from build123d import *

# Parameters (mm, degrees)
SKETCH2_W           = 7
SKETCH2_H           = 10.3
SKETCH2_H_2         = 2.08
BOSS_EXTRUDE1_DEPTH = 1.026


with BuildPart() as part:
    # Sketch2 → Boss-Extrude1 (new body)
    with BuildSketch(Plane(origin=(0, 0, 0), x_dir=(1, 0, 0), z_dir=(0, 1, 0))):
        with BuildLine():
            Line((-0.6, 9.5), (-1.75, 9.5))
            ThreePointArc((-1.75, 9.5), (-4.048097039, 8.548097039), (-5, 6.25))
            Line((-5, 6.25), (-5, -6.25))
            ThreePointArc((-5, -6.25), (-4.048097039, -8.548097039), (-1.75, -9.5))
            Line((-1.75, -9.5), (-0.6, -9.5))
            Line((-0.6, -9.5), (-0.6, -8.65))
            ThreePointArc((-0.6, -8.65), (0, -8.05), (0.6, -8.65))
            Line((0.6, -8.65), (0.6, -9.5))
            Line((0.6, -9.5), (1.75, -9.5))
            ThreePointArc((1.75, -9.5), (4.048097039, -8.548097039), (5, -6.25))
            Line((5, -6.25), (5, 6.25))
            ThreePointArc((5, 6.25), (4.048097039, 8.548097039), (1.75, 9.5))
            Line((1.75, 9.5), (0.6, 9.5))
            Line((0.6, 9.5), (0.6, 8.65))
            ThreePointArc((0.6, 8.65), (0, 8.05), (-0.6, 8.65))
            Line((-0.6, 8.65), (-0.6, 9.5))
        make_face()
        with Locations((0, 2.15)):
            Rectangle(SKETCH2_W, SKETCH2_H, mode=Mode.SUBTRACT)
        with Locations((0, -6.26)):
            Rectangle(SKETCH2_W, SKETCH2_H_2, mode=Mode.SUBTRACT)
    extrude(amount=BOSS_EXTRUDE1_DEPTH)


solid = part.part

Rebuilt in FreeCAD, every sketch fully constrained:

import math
import FreeCAD as App
import Part
import Sketcher

V = App.Vector
Q = App.Units.Quantity


def add_polygon(sketch, points):
    """Adds a closed chain of lines whose ends are joined by coincident constraints."""
    first, n = sketch.GeometryCount, len(points)
    for a, b in zip(points, points[1:] + points[:1]):
        sketch.addGeometry(Part.LineSegment(App.Vector(*a, 0), App.Vector(*b, 0)), False)
    for i in range(n):
        sketch.addConstraint(Sketcher.Constraint("Coincident", first + i, 2, first + (i + 1) % n, 1))

doc = App.newDocument("Part")
body = doc.addObject("PartDesign::Body", "Body")

# Sketch on XZ plane
sketch1 = body.newObject("Sketcher::SketchObject", "Sketch")
sketch1.AttachmentSupport = (doc.getObject("XZ_Plane"), [""])
sketch1.MapMode = "FlatFace"
sketch1.addGeometry(Part.LineSegment(V(-0.6, -9.5, 0), V(-1.8, -9.5, 0)), False)  # 0
sketch1.addGeometry(Part.ArcOfCircle(Part.Circle(V(-1.8, -6.2, 0), V(0, 0, 1), 3.2), math.radians(180), math.radians(270)), False)  # 1
sketch1.addGeometry(Part.LineSegment(V(-5, -6.2, 0), V(-5, 6.2, 0)), False)  # 2
sketch1.addGeometry(Part.ArcOfCircle(Part.Circle(V(-1.8, 6.2, 0), V(0, 0, 1), 3.2), math.radians(90), math.radians(180)), False)  # 3
sketch1.addGeometry(Part.LineSegment(V(-1.8, 9.5, 0), V(-0.6, 9.5, 0)), False)  # 4
sketch1.addGeometry(Part.LineSegment(V(-0.6, 9.5, 0), V(-0.6, 8.7, 0)), False)  # 5
sketch1.addGeometry(Part.ArcOfCircle(Part.Circle(V(0, 8.7, 0), V(0, 0, 1), 0.6), math.radians(180), math.radians(360)), False)  # 6
sketch1.addGeometry(Part.LineSegment(V(0.6, 8.7, 0), V(0.6, 9.5, 0)), False)  # 7
sketch1.addGeometry(Part.LineSegment(V(0.6, 9.5, 0), V(1.8, 9.5, 0)), False)  # 8
sketch1.addGeometry(Part.ArcOfCircle(Part.Circle(V(1.8, 6.2, 0), V(0, 0, 1), 3.2), math.radians(0), math.radians(90)), False)  # 9
sketch1.addGeometry(Part.LineSegment(V(5, 6.2, 0), V(5, -6.2, 0)), False)  # 10
sketch1.addGeometry(Part.ArcOfCircle(Part.Circle(V(1.8, -6.2, 0), V(0, 0, 1), 3.2), math.radians(-90), math.radians(0)), False)  # 11
sketch1.addGeometry(Part.LineSegment(V(1.8, -9.5, 0), V(0.6, -9.5, 0)), False)  # 12
sketch1.addGeometry(Part.LineSegment(V(0.6, -9.5, 0), V(0.6, -8.7, 0)), False)  # 13
sketch1.addGeometry(Part.ArcOfCircle(Part.Circle(V(0, -8.7, 0), V(0, 0, 1), 0.6), math.radians(0), math.radians(180)), False)  # 14
sketch1.addGeometry(Part.LineSegment(V(-0.6, -8.7, 0), V(-0.6, -9.5, 0)), False)  # 15
add_polygon(sketch1, [(3.5, 7.3), (-3.5, 7.3), (-3.5, 5.2), (3.5, 5.2)])  # lines 16-19
add_polygon(sketch1, [(3.5, 3), (-3.5, 3), (-3.5, -7.3), (3.5, -7.3)])  # lines 20-23
sketch1.addConstraint([
    Sketcher.Constraint("Tangent", 0, 2, 1, 2),
    Sketcher.Constraint("Tangent", 1, 1, 2, 1),
    Sketcher.Constraint("Tangent", 2, 2, 3, 2),
    Sketcher.Constraint("Tangent", 3, 1, 4, 1),
    Sketcher.Constraint("Coincident", 4, 2, 5, 1),
    Sketcher.Constraint("Tangent", 5, 2, 6, 1),
    Sketcher.Constraint("Tangent", 6, 2, 7, 1),
    Sketcher.Constraint("Coincident", 7, 2, 8, 1),
    Sketcher.Constraint("Tangent", 8, 2, 9, 2),
    Sketcher.Constraint("Tangent", 9, 1, 10, 1),
    Sketcher.Constraint("Tangent", 10, 2, 11, 2),
    Sketcher.Constraint("Tangent", 11, 1, 12, 1),
    Sketcher.Constraint("Coincident", 12, 2, 13, 1),
    Sketcher.Constraint("Tangent", 13, 2, 14, 1),
    Sketcher.Constraint("Tangent", 14, 2, 15, 1),
    Sketcher.Constraint("Coincident", 15, 2, 0, 1),
    Sketcher.Constraint("Horizontal", 0),
    Sketcher.Constraint("Vertical", 2),
    Sketcher.Constraint("Horizontal", 4),
    Sketcher.Constraint("Vertical", 5),
    Sketcher.Constraint("Vertical", 7),
    Sketcher.Constraint("Horizontal", 8),
    Sketcher.Constraint("Vertical", 10),
    Sketcher.Constraint("Horizontal", 12),
    Sketcher.Constraint("Vertical", 13),
    Sketcher.Constraint("Vertical", 15),
    Sketcher.Constraint("Horizontal", 16),
    Sketcher.Constraint("Vertical", 17),
    Sketcher.Constraint("Horizontal", 18),
    Sketcher.Constraint("Vertical", 19),
    Sketcher.Constraint("Horizontal", 20),
    Sketcher.Constraint("Vertical", 21),
    Sketcher.Constraint("Horizontal", 22),
    Sketcher.Constraint("Vertical", 23),
    Sketcher.Constraint("Equal", 1, 3),
    Sketcher.Constraint("Equal", 3, 9),
    Sketcher.Constraint("Equal", 9, 11),
    Sketcher.Constraint("Equal", 6, 14),
    Sketcher.Constraint("Symmetric", 1, 3, 9, 3, -1, 1),
    Sketcher.Constraint("Symmetric", 6, 3, 14, 3, -1, 1),
    Sketcher.Constraint("Symmetric", 19, 2, 21, 2, -1, 1),
    Sketcher.Constraint("Symmetric", 4, 2, 7, 2, -2),
    Sketcher.Constraint("Horizontal", 1, 3, 11, 3),
    Sketcher.Constraint("Vertical", 17, 2, 20, 2),
    Sketcher.Constraint("Vertical", 19, 2, 22, 2),
    Sketcher.Constraint("Radius", 6, Q("0.6 mm")),
    Sketcher.Constraint("DistanceX", 16, 2, 16, 1, Q("7 mm")),
    Sketcher.Constraint("Radius", 1, Q("3.25 mm")),
    Sketcher.Constraint("DistanceY", 2, 1, 2, 2, Q("12.5 mm")),
    Sketcher.Constraint("DistanceY", 21, 2, 21, 1, Q("10.3 mm")),
    Sketcher.Constraint("DistanceX", 1, 1, -1, 1, Q("5 mm")),
    Sketcher.Constraint("DistanceY", -1, 1, 20, 2, Q("3 mm")),
    Sketcher.Constraint("DistanceY", 5, 2, 5, 1, Q("0.85 mm")),
    Sketcher.Constraint("DistanceY", 17, 2, 17, 1, Q("2.08 mm")),
])
pad1 = body.newObject("PartDesign::Pad", "Pad")
pad1.Profile = sketch1
pad1.Length = 1.026
pad1.Reversed = True

doc.recompute()
